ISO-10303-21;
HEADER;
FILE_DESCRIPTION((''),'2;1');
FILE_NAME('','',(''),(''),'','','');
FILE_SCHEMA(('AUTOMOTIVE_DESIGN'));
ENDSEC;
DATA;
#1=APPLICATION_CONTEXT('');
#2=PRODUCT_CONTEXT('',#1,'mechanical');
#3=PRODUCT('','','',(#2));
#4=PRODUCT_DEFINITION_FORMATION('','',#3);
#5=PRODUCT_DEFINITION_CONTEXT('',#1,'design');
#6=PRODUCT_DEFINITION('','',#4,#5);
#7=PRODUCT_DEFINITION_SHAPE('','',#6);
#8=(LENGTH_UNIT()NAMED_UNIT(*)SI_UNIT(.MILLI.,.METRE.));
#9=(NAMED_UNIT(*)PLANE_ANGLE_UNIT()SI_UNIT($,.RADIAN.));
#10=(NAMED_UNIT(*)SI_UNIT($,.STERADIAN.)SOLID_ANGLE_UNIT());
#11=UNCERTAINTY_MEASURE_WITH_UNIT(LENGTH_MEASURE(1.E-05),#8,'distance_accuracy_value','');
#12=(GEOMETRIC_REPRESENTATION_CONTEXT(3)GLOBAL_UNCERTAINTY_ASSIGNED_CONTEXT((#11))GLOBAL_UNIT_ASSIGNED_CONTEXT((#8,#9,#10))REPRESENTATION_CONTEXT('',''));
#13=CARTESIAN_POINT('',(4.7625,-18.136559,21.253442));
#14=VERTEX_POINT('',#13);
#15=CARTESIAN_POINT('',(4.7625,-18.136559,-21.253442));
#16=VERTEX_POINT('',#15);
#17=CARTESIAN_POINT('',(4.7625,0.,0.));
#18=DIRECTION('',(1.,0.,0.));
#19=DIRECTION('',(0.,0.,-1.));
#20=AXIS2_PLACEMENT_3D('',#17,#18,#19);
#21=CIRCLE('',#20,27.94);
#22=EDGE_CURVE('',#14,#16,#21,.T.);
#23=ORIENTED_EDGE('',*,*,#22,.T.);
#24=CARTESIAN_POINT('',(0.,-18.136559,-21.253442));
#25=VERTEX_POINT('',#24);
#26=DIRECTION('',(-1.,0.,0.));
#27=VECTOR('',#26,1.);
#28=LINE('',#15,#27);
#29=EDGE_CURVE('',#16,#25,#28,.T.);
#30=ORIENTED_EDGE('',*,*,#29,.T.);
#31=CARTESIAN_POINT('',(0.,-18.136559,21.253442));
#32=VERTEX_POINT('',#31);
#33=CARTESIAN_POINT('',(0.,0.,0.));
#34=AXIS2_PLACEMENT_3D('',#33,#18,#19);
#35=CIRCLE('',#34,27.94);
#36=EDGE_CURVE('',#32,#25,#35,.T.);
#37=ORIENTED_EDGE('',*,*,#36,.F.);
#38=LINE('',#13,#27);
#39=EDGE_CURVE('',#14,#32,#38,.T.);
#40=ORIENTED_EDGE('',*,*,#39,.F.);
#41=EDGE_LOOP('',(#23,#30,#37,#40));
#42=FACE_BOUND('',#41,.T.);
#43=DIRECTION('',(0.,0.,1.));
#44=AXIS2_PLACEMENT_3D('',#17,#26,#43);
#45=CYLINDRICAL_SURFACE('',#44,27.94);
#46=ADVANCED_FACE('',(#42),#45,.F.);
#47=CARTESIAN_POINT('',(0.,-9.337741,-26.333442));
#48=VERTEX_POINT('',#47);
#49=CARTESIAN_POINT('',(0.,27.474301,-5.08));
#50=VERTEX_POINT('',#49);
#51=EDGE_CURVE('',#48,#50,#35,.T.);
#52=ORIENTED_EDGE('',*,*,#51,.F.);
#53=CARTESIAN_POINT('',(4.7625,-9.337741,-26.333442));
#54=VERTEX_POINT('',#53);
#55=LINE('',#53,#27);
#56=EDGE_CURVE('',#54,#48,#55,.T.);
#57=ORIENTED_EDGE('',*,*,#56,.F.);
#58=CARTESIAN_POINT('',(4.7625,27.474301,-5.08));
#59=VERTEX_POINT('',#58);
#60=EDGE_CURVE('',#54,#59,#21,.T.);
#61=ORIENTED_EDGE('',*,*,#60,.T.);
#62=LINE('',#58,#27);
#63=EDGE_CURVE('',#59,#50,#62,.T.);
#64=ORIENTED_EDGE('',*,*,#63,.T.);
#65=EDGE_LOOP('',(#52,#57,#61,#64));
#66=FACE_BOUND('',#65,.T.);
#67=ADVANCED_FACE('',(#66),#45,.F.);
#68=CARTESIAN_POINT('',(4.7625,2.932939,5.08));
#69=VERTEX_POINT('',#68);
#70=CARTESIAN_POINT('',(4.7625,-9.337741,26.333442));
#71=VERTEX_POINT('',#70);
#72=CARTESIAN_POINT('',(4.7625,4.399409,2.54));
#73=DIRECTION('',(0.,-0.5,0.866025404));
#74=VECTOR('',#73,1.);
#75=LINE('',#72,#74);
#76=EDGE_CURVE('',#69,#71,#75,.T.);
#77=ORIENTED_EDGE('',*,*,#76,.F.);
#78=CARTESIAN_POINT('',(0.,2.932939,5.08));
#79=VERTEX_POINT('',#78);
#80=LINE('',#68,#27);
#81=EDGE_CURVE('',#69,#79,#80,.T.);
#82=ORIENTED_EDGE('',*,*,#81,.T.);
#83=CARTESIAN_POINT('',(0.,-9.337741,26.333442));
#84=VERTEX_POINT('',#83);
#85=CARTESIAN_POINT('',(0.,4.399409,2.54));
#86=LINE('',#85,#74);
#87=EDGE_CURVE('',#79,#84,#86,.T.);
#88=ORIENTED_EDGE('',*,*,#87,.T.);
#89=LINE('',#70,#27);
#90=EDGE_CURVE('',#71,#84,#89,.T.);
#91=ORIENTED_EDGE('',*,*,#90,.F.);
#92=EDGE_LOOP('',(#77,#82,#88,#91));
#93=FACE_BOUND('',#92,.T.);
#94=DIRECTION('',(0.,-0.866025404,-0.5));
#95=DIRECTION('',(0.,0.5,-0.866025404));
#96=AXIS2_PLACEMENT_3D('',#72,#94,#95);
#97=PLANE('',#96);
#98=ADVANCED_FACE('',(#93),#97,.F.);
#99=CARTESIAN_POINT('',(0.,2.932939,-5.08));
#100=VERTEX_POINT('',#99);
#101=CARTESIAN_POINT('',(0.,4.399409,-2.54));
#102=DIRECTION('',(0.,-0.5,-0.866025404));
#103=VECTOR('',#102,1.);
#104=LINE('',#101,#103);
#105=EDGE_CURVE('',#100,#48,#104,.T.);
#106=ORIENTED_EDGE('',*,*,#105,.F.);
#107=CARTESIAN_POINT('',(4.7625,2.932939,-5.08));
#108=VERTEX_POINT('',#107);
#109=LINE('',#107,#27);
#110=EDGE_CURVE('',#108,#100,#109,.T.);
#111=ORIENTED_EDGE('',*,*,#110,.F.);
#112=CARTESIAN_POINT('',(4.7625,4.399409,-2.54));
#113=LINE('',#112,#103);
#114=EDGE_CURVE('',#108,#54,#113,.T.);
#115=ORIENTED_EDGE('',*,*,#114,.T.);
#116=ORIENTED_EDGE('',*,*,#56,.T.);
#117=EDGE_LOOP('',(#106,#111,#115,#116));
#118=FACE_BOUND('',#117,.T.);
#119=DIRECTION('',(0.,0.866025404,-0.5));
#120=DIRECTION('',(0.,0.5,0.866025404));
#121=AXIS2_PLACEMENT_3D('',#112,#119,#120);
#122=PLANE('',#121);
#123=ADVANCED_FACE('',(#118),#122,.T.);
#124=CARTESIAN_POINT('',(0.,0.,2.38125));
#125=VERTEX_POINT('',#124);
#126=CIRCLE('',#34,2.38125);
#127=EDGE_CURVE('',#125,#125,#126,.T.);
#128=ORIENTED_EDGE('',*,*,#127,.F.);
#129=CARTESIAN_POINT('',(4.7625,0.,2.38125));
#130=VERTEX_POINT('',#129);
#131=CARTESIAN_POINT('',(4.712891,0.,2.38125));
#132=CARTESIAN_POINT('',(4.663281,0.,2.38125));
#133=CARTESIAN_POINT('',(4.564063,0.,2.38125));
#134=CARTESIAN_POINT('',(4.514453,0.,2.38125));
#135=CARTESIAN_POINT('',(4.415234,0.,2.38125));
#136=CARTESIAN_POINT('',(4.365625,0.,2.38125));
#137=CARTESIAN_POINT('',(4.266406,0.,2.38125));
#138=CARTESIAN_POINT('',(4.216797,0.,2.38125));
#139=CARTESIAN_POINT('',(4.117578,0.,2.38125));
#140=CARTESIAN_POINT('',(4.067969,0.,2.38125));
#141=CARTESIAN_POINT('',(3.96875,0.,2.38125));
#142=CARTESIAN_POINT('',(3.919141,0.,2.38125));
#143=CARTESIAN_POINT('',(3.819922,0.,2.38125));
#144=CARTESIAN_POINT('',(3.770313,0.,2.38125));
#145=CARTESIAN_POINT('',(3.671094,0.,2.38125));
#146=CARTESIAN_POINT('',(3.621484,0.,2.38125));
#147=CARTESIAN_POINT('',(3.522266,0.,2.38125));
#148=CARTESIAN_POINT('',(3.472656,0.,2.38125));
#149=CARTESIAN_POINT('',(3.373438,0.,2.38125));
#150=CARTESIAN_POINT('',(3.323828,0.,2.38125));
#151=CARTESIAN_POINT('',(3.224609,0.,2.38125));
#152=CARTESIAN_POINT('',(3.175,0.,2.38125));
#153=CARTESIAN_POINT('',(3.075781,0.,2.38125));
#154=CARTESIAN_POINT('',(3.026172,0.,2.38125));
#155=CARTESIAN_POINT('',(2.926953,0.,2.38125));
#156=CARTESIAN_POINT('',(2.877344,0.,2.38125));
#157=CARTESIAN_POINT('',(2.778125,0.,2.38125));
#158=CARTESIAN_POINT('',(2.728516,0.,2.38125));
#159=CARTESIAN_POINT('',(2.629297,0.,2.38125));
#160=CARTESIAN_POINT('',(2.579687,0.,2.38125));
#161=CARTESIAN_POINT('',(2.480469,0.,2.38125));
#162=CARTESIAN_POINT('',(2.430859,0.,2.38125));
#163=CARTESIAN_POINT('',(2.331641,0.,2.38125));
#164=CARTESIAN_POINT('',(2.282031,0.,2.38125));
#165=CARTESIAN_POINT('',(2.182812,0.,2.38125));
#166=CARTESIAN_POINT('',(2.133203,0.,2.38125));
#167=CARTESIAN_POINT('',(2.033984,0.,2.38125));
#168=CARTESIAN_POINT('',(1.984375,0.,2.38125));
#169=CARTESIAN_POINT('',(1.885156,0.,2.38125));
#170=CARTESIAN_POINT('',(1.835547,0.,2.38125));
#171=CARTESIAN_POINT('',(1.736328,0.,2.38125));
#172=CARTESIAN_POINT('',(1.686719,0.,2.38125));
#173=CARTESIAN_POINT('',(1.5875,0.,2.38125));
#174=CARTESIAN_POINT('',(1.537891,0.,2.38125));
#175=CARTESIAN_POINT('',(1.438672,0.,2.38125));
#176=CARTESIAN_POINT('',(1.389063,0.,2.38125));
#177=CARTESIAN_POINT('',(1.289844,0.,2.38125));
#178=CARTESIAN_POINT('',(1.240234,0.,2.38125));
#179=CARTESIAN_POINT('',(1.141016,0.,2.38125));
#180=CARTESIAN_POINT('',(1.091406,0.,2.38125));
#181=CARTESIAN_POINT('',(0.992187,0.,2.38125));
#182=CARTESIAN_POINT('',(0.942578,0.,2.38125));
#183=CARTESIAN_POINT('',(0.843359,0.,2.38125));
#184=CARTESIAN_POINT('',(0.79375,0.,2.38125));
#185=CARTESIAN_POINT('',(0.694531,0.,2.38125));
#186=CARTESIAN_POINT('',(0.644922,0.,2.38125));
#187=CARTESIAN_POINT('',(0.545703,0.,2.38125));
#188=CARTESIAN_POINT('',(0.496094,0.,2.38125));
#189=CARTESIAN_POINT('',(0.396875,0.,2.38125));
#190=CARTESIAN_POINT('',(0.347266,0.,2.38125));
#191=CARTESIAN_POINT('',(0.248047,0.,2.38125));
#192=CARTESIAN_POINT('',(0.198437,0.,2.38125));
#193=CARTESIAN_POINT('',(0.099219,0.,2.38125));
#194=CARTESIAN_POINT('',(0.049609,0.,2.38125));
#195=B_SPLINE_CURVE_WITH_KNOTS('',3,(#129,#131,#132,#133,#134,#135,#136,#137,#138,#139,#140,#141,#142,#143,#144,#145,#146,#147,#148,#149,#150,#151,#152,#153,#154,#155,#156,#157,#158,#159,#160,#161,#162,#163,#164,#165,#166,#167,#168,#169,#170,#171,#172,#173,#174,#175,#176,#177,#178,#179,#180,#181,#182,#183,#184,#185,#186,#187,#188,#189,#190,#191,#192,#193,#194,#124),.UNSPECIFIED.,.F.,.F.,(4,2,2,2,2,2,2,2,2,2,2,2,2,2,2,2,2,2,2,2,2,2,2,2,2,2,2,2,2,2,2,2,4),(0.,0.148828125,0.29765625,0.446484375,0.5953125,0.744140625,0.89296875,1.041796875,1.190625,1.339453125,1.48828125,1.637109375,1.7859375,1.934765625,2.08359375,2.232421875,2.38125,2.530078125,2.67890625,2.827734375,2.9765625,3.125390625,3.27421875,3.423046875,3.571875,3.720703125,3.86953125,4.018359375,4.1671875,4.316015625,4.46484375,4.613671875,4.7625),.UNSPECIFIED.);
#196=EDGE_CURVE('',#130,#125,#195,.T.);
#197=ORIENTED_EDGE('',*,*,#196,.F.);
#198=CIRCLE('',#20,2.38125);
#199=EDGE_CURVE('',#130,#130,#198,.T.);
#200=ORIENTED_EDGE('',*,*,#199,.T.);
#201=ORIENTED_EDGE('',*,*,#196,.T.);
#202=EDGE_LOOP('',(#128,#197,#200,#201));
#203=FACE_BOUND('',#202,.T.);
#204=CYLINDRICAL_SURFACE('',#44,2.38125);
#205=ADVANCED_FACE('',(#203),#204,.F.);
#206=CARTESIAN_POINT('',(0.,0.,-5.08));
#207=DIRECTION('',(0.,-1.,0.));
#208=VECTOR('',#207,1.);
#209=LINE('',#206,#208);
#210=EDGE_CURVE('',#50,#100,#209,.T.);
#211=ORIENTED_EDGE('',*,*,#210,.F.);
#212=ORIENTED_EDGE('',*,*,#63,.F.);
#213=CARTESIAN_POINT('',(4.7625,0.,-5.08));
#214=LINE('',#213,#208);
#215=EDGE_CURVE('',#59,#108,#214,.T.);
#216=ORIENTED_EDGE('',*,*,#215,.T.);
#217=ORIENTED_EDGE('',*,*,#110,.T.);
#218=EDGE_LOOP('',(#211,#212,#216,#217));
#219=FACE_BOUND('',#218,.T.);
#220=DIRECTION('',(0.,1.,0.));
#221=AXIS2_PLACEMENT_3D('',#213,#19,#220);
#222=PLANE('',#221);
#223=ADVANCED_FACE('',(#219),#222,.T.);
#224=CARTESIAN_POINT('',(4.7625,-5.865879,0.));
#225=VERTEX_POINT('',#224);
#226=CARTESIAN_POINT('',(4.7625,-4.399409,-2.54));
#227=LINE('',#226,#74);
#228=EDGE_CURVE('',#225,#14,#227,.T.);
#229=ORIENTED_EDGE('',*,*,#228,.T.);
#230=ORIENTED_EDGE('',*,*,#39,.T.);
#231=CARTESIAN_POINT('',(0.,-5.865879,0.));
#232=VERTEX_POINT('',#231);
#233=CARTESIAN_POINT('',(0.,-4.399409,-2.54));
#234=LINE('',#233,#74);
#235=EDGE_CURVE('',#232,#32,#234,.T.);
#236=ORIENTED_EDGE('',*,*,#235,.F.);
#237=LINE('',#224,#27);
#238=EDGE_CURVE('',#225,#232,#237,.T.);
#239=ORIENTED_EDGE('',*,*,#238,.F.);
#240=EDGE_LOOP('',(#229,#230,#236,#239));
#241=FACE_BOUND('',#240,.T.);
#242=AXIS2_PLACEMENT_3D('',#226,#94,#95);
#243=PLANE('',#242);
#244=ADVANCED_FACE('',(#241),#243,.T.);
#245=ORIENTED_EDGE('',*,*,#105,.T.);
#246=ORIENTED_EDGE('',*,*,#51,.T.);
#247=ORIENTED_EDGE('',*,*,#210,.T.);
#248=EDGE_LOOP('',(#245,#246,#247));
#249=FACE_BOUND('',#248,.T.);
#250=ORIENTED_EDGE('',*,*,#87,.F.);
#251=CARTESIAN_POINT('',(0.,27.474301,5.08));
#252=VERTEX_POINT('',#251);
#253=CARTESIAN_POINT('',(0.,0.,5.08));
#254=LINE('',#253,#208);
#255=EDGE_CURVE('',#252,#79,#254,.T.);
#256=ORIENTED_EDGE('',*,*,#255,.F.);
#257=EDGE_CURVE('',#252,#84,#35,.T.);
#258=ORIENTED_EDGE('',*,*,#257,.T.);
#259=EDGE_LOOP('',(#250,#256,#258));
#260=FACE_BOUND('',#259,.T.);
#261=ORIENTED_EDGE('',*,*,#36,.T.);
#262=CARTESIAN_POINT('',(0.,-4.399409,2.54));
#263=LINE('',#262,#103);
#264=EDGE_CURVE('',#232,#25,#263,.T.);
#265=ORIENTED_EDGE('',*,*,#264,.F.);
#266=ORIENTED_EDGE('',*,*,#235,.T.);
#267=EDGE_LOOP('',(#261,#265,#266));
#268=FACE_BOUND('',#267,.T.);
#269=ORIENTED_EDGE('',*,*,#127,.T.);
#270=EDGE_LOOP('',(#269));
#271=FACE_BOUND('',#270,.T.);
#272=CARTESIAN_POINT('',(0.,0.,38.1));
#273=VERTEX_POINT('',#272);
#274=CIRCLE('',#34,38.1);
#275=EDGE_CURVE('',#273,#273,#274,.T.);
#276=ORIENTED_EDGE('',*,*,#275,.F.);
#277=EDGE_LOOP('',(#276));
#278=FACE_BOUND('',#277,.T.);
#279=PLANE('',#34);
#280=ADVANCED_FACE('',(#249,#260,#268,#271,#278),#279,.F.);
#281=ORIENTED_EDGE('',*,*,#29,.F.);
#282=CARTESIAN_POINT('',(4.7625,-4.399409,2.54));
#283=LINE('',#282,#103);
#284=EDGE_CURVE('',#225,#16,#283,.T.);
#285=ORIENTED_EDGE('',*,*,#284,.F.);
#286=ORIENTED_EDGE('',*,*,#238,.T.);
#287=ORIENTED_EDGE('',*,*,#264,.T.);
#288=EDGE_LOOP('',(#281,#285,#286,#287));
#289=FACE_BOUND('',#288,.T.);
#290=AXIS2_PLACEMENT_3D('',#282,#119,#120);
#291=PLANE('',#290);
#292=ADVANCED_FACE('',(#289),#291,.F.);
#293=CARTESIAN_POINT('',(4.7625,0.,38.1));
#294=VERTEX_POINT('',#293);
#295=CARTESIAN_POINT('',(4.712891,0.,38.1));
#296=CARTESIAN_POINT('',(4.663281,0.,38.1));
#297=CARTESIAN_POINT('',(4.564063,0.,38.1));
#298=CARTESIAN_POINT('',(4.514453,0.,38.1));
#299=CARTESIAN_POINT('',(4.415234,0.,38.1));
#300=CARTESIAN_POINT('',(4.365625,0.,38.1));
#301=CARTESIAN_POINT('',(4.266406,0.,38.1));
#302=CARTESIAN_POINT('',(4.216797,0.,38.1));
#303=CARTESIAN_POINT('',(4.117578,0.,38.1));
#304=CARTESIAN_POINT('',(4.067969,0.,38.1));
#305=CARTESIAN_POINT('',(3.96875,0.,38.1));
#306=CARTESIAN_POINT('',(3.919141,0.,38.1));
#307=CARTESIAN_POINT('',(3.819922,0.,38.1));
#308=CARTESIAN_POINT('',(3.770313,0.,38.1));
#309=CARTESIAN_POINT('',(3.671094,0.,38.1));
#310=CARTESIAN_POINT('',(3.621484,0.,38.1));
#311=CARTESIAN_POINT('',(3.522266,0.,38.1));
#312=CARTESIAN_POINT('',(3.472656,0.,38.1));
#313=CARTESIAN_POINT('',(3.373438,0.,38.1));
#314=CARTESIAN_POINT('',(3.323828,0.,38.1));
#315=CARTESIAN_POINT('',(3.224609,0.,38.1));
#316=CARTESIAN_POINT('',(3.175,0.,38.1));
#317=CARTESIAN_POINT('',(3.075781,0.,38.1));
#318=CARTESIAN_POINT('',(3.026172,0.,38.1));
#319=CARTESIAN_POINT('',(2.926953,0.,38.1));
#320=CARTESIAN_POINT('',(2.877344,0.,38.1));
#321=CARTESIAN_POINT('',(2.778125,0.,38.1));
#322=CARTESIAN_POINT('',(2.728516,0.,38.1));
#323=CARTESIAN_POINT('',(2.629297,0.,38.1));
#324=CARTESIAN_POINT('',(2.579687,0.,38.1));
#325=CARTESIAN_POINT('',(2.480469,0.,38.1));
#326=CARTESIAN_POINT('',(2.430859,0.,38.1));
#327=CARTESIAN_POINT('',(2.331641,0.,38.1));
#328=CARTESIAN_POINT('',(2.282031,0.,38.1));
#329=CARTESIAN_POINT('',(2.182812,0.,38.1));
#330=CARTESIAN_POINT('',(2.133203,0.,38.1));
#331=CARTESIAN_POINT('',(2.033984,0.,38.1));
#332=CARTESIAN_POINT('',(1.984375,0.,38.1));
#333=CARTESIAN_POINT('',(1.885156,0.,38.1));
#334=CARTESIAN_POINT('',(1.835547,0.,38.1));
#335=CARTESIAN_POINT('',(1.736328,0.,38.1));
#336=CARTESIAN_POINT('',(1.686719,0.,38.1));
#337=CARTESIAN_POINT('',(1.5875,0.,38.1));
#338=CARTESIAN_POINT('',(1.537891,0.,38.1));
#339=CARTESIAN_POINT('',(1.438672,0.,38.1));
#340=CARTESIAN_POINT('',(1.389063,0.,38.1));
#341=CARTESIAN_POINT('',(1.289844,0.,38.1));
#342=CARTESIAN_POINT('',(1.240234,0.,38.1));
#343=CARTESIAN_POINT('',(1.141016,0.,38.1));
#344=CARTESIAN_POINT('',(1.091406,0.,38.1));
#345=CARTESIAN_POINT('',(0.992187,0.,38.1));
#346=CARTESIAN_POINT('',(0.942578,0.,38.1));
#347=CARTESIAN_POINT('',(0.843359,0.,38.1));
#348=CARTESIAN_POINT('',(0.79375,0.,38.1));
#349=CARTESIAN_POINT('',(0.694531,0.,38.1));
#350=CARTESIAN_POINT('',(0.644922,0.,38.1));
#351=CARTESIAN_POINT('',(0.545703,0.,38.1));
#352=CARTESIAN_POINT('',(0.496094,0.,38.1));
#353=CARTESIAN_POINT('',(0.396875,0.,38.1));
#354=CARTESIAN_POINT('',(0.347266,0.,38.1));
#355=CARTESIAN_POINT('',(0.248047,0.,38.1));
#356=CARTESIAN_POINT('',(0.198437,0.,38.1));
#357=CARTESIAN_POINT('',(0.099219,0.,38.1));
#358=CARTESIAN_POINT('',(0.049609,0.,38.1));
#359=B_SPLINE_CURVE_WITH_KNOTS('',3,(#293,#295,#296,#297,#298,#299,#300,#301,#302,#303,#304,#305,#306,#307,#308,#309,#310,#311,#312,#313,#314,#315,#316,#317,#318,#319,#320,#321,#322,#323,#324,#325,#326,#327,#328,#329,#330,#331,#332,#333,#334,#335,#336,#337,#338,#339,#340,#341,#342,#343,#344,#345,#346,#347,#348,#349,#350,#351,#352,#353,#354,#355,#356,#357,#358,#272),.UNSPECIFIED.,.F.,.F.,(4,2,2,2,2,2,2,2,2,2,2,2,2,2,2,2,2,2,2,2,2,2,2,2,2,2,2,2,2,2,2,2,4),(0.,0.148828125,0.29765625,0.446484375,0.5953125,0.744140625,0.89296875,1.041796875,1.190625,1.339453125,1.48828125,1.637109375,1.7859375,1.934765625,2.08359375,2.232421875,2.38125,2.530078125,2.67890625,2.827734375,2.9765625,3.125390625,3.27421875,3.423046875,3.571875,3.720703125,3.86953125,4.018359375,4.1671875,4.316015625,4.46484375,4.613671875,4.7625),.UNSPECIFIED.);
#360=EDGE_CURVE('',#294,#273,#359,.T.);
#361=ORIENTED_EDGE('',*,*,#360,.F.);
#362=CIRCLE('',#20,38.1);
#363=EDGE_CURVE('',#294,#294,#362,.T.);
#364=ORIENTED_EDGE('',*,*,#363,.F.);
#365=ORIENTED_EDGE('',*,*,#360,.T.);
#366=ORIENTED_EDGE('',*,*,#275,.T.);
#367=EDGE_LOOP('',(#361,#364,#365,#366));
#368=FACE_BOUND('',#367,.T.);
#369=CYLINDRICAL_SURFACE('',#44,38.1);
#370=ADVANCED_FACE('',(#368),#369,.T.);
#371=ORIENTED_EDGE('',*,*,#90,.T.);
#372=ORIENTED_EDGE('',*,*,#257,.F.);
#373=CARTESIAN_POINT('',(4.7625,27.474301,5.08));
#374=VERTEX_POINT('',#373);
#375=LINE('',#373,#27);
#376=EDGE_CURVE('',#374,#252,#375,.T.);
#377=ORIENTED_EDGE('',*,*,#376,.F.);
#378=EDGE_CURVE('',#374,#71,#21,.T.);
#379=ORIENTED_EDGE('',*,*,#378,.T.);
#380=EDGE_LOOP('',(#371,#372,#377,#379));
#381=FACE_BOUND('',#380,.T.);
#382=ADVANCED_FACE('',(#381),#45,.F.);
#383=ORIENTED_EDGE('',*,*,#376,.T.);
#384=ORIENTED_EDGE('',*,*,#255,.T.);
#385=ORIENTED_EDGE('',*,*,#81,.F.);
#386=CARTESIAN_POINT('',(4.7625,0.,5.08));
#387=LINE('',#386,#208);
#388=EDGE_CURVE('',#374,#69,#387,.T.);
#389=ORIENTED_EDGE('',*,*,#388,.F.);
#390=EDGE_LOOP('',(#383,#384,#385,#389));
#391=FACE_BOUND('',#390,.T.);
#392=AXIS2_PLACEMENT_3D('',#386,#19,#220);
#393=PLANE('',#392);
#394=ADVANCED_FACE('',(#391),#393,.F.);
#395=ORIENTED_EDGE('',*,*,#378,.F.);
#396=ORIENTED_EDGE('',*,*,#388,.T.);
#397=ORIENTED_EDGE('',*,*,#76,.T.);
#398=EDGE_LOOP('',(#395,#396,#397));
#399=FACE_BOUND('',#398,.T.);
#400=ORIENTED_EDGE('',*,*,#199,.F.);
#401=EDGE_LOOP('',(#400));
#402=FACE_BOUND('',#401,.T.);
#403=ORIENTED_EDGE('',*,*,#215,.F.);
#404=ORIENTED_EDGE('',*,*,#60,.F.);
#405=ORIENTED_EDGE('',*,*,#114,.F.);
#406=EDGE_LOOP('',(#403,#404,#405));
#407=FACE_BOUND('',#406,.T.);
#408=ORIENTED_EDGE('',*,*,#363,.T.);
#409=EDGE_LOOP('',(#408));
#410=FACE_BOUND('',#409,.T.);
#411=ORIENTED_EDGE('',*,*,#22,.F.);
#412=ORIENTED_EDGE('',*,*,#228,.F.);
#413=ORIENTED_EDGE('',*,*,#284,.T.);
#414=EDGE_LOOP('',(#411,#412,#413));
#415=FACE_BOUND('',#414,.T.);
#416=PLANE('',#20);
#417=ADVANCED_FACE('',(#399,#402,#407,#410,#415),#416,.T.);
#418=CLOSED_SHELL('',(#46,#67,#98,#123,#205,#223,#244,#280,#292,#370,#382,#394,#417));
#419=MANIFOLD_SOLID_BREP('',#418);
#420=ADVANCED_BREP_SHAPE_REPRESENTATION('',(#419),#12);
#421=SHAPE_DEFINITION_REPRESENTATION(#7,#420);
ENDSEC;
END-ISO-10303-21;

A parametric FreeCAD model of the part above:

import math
import FreeCAD as App
import Part
import Sketcher
from FreeCAD import Vector
Q = App.Units.Quantity

doc = App.newDocument("Part")
params = doc.addObject("Spreadsheet::Sheet", "Params")
for row, (alias, value) in enumerate([
    ("sketch1_diameter", "3 in"),
    ("pad1_length", "0.1875 in"),
    ("sketch2_radius", "1.1 in"),
    ("sketch2_diameter", "0.1875 in"),
], start=1):
    params.set(f"A{row}", alias)
    params.set(f"B{row}", "=" + value)
    params.setAlias(f"B{row}", alias)

body = doc.addObject("PartDesign::Body", "Body")

# Sketch on YZ plane
sketch1 = body.newObject("Sketcher::SketchObject", "Sketch")
sketch1.AttachmentSupport = (doc.getObject("YZ_Plane"), [""])
sketch1.MapMode = "FlatFace"
sketch1.addGeometry(Part.Circle(Vector(0, 0, 0), Vector(0, 0, 1), 38), False)
sketch1.addConstraint([
    Sketcher.Constraint("Coincident", 0, 3, -1, 1),
    Sketcher.Constraint("Diameter", 0, Q("3 in")),
])
sketch1.setExpression("Constraints[1]", "Params.sketch1_diameter")
pad1 = body.newObject("PartDesign::Pad", "Pad")
pad1.Profile = sketch1
pad1.setExpression("Length", "Params.pad1_length")

# Sketch on YZ plane
sketch2 = body.newObject("Sketcher::SketchObject", "Sketch001")
sketch2.AttachmentSupport = (doc.getObject("YZ_Plane"), [""])
sketch2.MapMode = "FlatFace"
sketch2.addGeometry([
    Part.LineSegment(Vector(-18.1, -21.3, 0), Vector(-5.9, 0, 0)),  # 0
    Part.LineSegment(Vector(-5.9, 0, 0), Vector(-18.1, 21.3, 0)),  # 1
    Part.ArcOfCircle(Part.Circle(Vector(0, 0, 0), Vector(0, 0, 1), 27.9), math.radians(130), math.radians(230)),  # 2
    Part.LineSegment(Vector(-9.3, 26.3, 0), Vector(2.9, 5.1, 0)),  # 3
    Part.LineSegment(Vector(2.9, 5.1, 0), Vector(27.5, 5.1, 0)),  # 4
    Part.ArcOfCircle(Part.Circle(Vector(0, 0, 0), Vector(0, 0, 1), 27.9), math.radians(10), math.radians(110)),  # 5
    Part.LineSegment(Vector(2.9, -5.1, 0), Vector(-9.3, -26.3, 0)),  # 6
    Part.ArcOfCircle(Part.Circle(Vector(0, 0, 0), Vector(0, 0, 1), 27.9), math.radians(-109.52), math.radians(-90)),  # 7
    Part.ArcOfCircle(Part.Circle(Vector(0, 0, 0), Vector(0, 0, 1), 27.9), math.radians(-90), math.radians(-10)),  # 8
    Part.LineSegment(Vector(27.5, -5.1, 0), Vector(2.9, -5.1, 0)),  # 9
    Part.Circle(Vector(0, 0, 0), Vector(0, 0, 1), 2.4),  # 10
], False)
sketch2.addConstraint([
    Sketcher.Constraint("Coincident", 0, 2, 1, 1),
    Sketcher.Constraint("Coincident", 1, 2, 2, 1),
    Sketcher.Constraint("Coincident", 2, 2, 0, 1),
    Sketcher.Constraint("Coincident", 3, 2, 4, 1),
    Sketcher.Constraint("Coincident", 4, 2, 5, 1),
    Sketcher.Constraint("Coincident", 5, 2, 3, 1),
    Sketcher.Constraint("Coincident", 6, 2, 7, 1),
    Sketcher.Constraint("Tangent", 7, 2, 8, 1),
    Sketcher.Constraint("Coincident", 8, 2, 9, 1),
    Sketcher.Constraint("Coincident", 9, 2, 6, 1),
    Sketcher.Constraint("Horizontal", 4),
    Sketcher.Constraint("Horizontal", 9),
    Sketcher.Constraint("Coincident", 2, 3, -1, 1),
    Sketcher.Constraint("Coincident", 5, 3, -1, 1),
    Sketcher.Constraint("Coincident", 7, 3, -1, 1),
    Sketcher.Constraint("Coincident", 10, 3, -1, 1),
    Sketcher.Constraint("Equal", 2, 5),
    Sketcher.Constraint("Equal", 5, 7),
    Sketcher.Constraint("Equal", 7, 8),
    Sketcher.Constraint("Symmetric", 3, 2, 9, 2, -1),
    Sketcher.Constraint("PointOnObject", 0, 2, -1),
    Sketcher.Constraint("PointOnObject", 7, 2, -2),
    Sketcher.Constraint("Parallel", 1, 3),
    Sketcher.Constraint("Parallel", 0, 6),
    Sketcher.Constraint("Vertical", 1, 2, 2, 2),
    Sketcher.Constraint("Equal", 1, 3),
    Sketcher.Constraint("Radius", 2, Q("1.1 in")),
    Sketcher.Constraint("Diameter", 10, Q("0.1875 in")),
    Sketcher.Constraint("Angle", 0, Q("60 deg")),
    Sketcher.Constraint("DistanceY", -1, 1, 3, 2, Q("0.2 in")),
    Sketcher.Constraint("DistanceX", 4, 1, 4, 2, Q("24.541361 mm")),
])
sketch2.setExpression("Constraints[26]", "Params.sketch2_radius")
sketch2.setExpression("Constraints[27]", "Params.sketch2_diameter")
pocket1 = body.newObject("PartDesign::Pocket", "Pocket")
pocket1.Profile = sketch2
pocket1.Type = "ThroughAll"
pocket1.Reversed = True

doc.recompute()
